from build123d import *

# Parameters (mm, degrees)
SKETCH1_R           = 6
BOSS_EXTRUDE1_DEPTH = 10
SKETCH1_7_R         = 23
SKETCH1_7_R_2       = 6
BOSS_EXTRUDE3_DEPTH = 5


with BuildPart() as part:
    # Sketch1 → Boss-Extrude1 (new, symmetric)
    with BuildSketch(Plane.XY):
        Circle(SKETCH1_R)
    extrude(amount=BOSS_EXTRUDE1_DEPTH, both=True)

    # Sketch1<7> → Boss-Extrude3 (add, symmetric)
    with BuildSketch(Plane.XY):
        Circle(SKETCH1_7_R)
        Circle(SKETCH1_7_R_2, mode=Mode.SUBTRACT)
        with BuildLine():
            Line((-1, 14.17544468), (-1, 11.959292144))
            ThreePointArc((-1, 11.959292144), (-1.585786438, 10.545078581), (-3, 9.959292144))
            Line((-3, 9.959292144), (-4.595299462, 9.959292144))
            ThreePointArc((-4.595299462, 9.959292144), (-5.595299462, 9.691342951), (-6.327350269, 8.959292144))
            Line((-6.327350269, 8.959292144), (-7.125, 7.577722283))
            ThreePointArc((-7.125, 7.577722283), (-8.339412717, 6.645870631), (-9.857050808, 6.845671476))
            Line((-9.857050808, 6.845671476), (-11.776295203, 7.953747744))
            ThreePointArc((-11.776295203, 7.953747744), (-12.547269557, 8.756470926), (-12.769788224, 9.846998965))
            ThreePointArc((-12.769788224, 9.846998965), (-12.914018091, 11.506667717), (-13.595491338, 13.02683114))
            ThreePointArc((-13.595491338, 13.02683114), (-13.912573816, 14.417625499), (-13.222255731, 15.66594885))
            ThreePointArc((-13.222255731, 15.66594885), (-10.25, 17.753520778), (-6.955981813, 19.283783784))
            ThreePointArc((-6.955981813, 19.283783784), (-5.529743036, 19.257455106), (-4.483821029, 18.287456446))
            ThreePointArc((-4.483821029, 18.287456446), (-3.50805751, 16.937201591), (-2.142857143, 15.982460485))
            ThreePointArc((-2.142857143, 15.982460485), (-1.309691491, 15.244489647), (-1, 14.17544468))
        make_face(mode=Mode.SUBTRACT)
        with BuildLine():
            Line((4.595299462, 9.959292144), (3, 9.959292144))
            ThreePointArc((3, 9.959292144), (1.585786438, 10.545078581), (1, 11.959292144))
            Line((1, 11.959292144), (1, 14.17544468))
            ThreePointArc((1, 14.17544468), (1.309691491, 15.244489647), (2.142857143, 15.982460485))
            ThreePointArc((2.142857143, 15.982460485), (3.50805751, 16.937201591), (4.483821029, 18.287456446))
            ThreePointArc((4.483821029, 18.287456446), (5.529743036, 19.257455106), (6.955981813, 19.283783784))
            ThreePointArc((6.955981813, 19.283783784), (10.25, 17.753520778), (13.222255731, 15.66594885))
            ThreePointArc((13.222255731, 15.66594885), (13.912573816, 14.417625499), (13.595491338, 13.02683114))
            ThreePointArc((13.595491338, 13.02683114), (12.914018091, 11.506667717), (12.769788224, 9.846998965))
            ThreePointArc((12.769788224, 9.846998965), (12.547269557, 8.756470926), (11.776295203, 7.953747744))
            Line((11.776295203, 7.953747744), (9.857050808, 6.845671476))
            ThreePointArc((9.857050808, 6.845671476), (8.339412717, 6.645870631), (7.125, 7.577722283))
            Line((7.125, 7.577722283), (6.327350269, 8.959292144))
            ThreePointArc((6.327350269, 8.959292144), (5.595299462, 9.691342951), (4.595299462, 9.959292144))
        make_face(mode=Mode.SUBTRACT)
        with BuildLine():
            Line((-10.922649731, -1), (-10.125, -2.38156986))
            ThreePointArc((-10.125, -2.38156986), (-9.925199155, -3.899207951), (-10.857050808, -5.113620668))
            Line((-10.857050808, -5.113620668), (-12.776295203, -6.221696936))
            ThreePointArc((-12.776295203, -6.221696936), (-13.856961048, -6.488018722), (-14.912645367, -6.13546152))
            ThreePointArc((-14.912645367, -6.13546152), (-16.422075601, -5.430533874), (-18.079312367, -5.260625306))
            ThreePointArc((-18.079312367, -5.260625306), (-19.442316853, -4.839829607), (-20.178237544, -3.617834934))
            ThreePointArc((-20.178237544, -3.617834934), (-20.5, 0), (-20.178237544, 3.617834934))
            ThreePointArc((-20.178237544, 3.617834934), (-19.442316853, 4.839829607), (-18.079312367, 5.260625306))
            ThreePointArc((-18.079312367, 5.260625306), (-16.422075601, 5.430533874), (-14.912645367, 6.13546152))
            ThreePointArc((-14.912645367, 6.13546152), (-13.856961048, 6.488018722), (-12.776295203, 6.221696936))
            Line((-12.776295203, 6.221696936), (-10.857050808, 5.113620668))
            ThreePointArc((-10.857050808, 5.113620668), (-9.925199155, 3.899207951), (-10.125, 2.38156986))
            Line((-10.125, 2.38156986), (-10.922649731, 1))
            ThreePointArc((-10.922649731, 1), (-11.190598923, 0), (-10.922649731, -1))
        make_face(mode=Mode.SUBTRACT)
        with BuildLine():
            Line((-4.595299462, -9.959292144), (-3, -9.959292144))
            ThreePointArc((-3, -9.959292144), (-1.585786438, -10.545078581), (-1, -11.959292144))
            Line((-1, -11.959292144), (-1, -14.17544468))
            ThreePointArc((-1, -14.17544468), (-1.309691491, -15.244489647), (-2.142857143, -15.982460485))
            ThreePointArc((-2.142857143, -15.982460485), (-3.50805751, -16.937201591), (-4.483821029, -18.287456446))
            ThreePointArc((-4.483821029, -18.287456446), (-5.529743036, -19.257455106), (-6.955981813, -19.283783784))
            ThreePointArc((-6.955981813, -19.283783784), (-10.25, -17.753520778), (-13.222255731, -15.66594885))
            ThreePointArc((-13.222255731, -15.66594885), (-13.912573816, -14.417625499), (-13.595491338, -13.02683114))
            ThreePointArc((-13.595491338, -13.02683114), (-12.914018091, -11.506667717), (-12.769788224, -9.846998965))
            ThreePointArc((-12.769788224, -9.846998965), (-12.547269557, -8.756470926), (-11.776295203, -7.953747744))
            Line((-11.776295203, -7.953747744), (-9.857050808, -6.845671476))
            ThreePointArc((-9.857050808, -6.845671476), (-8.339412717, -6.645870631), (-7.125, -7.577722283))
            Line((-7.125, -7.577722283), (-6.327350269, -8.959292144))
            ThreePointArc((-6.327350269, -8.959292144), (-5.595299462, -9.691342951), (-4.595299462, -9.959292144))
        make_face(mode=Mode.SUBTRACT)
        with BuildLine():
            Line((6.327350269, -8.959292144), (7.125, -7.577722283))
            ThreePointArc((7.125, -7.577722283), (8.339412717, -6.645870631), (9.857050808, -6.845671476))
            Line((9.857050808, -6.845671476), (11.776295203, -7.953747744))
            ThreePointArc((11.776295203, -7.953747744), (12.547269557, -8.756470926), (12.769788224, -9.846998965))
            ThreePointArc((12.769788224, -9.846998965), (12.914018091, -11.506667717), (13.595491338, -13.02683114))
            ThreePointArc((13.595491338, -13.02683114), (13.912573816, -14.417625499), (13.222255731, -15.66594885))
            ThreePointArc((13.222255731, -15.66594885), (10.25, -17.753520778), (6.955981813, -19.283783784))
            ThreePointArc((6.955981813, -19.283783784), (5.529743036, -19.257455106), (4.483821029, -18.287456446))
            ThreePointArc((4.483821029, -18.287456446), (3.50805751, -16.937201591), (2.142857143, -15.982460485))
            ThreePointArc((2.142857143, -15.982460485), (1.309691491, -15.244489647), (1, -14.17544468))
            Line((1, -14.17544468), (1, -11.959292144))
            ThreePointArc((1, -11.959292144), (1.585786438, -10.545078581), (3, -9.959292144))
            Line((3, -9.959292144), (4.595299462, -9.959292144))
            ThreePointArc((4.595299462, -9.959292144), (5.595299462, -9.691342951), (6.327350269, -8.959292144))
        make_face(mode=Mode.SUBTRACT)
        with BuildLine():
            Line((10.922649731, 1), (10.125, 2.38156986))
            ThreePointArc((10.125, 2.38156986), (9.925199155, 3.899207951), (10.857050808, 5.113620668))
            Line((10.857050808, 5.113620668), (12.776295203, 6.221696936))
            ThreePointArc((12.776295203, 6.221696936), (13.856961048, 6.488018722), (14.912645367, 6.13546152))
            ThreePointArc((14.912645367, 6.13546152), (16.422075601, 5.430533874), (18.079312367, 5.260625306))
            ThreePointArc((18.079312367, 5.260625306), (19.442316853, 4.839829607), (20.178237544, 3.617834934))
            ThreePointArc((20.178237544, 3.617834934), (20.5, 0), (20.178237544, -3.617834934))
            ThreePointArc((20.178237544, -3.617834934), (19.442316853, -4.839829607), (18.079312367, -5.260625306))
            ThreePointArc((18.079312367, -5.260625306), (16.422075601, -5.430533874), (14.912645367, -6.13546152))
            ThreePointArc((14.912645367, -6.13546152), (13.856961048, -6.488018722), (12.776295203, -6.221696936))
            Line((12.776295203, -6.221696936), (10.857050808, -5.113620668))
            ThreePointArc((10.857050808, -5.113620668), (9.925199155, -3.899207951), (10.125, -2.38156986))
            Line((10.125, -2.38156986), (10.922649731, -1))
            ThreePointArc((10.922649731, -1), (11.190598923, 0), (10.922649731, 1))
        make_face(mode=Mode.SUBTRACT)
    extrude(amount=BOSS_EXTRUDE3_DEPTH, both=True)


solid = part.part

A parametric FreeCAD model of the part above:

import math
import FreeCAD as App
import Part
import Sketcher

V = App.Vector
Q = App.Units.Quantity

doc = App.newDocument("Part")
body = doc.addObject("PartDesign::Body", "Body")

# Sketch on XY plane
sketch1 = doc.addObject("Sketcher::SketchObject", "Sketch")
body.addObject(sketch1)
sketch1.AttachmentSupport = (doc.XY_Plane, [""])
sketch1.MapMode = "FlatFace"
sketch1.addGeometry(Part.Circle(V(0, 0, 0), V(0, 0, 1), 6), False)
sketch1.addConstraint(Sketcher.Constraint("Coincident", 0, 3, -1, 1))
sketch1.addConstraint(Sketcher.Constraint("Diameter", 0, Q("12 mm")))
pad1 = doc.addObject("PartDesign::Pad", "Pad")
body.addObject(pad1)
pad1.Profile = sketch1
pad1.Length = 20
pad1.Midplane = True

# Sketch on XY plane
sketch2 = doc.addObject("Sketcher::SketchObject", "Sketch001")
body.addObject(sketch2)
sketch2.AttachmentSupport = (doc.XY_Plane, [""])
sketch2.MapMode = "FlatFace"
sketch2.addGeometry(Part.Circle(V(0, 0, 0), V(0, 0, 1), 23), False)
sketch2.addGeometry(Part.ArcOfCircle(Part.Circle(V(-4.6, -8, 0), V(0, 0, 1), 2), math.radians(-150), math.radians(-90)), False)
sketch2.addGeometry(Part.LineSegment(V(-4.6, -10, 0), V(-3, -10, 0)), False)
sketch2.addGeometry(Part.ArcOfCircle(Part.Circle(V(-3, -12, 0), V(0, 0, 1), 2), math.radians(0), math.radians(90)), False)
sketch2.addGeometry(Part.LineSegment(V(-1, -12, 0), V(-1, -14.2, 0)), False)
sketch2.addGeometry(Part.ArcOfCircle(Part.Circle(V(-3, -14.2, 0), V(0, 0, 1), 2), math.radians(-65), math.radians(0)), False)
sketch2.addGeometry(Part.ArcOfCircle(Part.Circle(V(0, -20.5, 0), V(0, 0, 1), 5), math.radians(115), math.radians(154)), False)
sketch2.addGeometry(Part.ArcOfCircle(Part.Circle(V(-6.3, -17.4, 0), V(0, 0, 1), 2), math.radians(-110), math.radians(-26)), False)
sketch2.addGeometry(Part.ArcOfCircle(Part.Circle(V(0, 0, 0), V(0, 0, 1), 20.5), math.radians(-130), math.radians(-110)), False)
sketch2.addGeometry(Part.ArcOfCircle(Part.Circle(V(-11.9, -14.1, 0), V(0, 0, 1), 2), math.radians(146), math.radians(230)), False)
sketch2.addGeometry(Part.ArcOfCircle(Part.Circle(V(-17.8, -10.3, 0), V(0, 0, 1), 5), math.radians(-34), math.radians(5)), False)
sketch2.addGeometry(Part.ArcOfCircle(Part.Circle(V(-10.8, -9.7, 0), V(0, 0, 1), 2), math.radians(120), math.radians(185)), False)
sketch2.addGeometry(Part.LineSegment(V(-11.8, -8, 0), V(-9.9, -6.8, 0)), False)
sketch2.addGeometry(Part.ArcOfCircle(Part.Circle(V(-8.9, -8.6, 0), V(0, 0, 1), 2), math.radians(30), math.radians(120)), False)
sketch2.addGeometry(Part.LineSegment(V(-7.1, -7.6, 0), V(-6.3, -9, 0)), False)
sketch2.addGeometry(Part.ArcOfCircle(Part.Circle(V(4.6, -8, 0), V(0, 0, 1), 2), math.radians(-90), math.radians(-30)), False)
sketch2.addGeometry(Part.LineSegment(V(6.3, -9, 0), V(7.1, -7.6, 0)), False)
sketch2.addGeometry(Part.ArcOfCircle(Part.Circle(V(8.9, -8.6, 0), V(0, 0, 1), 2), math.radians(60), math.radians(150)), False)
sketch2.addGeometry(Part.LineSegment(V(9.9, -6.8, 0), V(11.8, -8, 0)), False)
sketch2.addGeometry(Part.ArcOfCircle(Part.Circle(V(10.8, -9.7, 0), V(0, 0, 1), 2), math.radians(-5), math.radians(60)), False)
sketch2.addGeometry(Part.ArcOfCircle(Part.Circle(V(17.8, -10.3, 0), V(0, 0, 1), 5), math.radians(175), math.radians(214)), False)
sketch2.addGeometry(Part.ArcOfCircle(Part.Circle(V(11.9, -14.1, 0), V(0, 0, 1), 2), math.radians(-50), math.radians(34)), False)
sketch2.addGeometry(Part.ArcOfCircle(Part.Circle(V(0, 0, 0), V(0, 0, 1), 20.5), math.radians(-70), math.radians(-50)), False)
sketch2.addGeometry(Part.ArcOfCircle(Part.Circle(V(6.3, -17.4, 0), V(0, 0, 1), 2), math.radians(-154), math.radians(-70)), False)
sketch2.addGeometry(Part.ArcOfCircle(Part.Circle(V(0, -20.5, 0), V(0, 0, 1), 5), math.radians(26), math.radians(65)), False)
sketch2.addGeometry(Part.ArcOfCircle(Part.Circle(V(3, -14.2, 0), V(0, 0, 1), 2), math.radians(-180), math.radians(-115)), False)
sketch2.addGeometry(Part.LineSegment(V(1, -14.2, 0), V(1, -12, 0)), False)
sketch2.addGeometry(Part.ArcOfCircle(Part.Circle(V(3, -12, 0), V(0, 0, 1), 2), math.radians(90), math.radians(180)), False)
sketch2.addGeometry(Part.LineSegment(V(3, -10, 0), V(4.6, -10, 0)), False)
sketch2.addGeometry(Part.ArcOfCircle(Part.Circle(V(-9.2, 0, 0), V(0, 0, 1), 2), math.radians(150), math.radians(210)), False)
sketch2.addGeometry(Part.LineSegment(V(-10.9, -1, 0), V(-10.1, -2.4, 0)), False)
sketch2.addGeometry(Part.ArcOfCircle(Part.Circle(V(-11.9, -3.4, 0), V(0, 0, 1), 2), math.radians(-60), math.radians(30)), False)
sketch2.addGeometry(Part.LineSegment(V(-10.9, -5.1, 0), V(-12.8, -6.2, 0)), False)
sketch2.addGeometry(Part.ArcOfCircle(Part.Circle(V(-13.8, -4.5, 0), V(0, 0, 1), 2), math.radians(-125), math.radians(-60)), False)
sketch2.addGeometry(Part.ArcOfCircle(Part.Circle(V(-17.8, -10.3, 0), V(0, 0, 1), 5), math.radians(55), math.radians(94)), False)
sketch2.addGeometry(Part.ArcOfCircle(Part.Circle(V(-18.2, -3.3, 0), V(0, 0, 1), 2), math.radians(-170), math.radians(-86)), False)
sketch2.addGeometry(Part.ArcOfCircle(Part.Circle(V(0, 0, 0), V(0, 0, 1), 20.5), math.radians(170), math.radians(190)), False)
sketch2.addGeometry(Part.ArcOfCircle(Part.Circle(V(-18.2, 3.3, 0), V(0, 0, 1), 2), math.radians(86), math.radians(170)), False)
sketch2.addGeometry(Part.ArcOfCircle(Part.Circle(V(-17.8, 10.3, 0), V(0, 0, 1), 5), math.radians(-94), math.radians(-55)), False)
sketch2.addGeometry(Part.ArcOfCircle(Part.Circle(V(-13.8, 4.5, 0), V(0, 0, 1), 2), math.radians(60), math.radians(125)), False)
sketch2.addGeometry(Part.LineSegment(V(-12.8, 6.2, 0), V(-10.9, 5.1, 0)), False)
sketch2.addGeometry(Part.ArcOfCircle(Part.Circle(V(-11.9, 3.4, 0), V(0, 0, 1), 2), math.radians(-30), math.radians(60)), False)
sketch2.addGeometry(Part.LineSegment(V(-10.1, 2.4, 0), V(-10.9, 1, 0)), False)
sketch2.addGeometry(Part.ArcOfCircle(Part.Circle(V(-3, 14.2, 0), V(0, 0, 1), 2), math.radians(0), math.radians(65)), False)
sketch2.addGeometry(Part.LineSegment(V(-1, 14.2, 0), V(-1, 12, 0)), False)
sketch2.addGeometry(Part.ArcOfCircle(Part.Circle(V(-3, 12, 0), V(0, 0, 1), 2), math.radians(-90), math.radians(0)), False)
sketch2.addGeometry(Part.LineSegment(V(-3, 10, 0), V(-4.6, 10, 0)), False)
sketch2.addGeometry(Part.ArcOfCircle(Part.Circle(V(-4.6, 8, 0), V(0, 0, 1), 2), math.radians(90), math.radians(150)), False)
sketch2.addGeometry(Part.LineSegment(V(-6.3, 9, 0), V(-7.1, 7.6, 0)), False)
sketch2.addGeometry(Part.ArcOfCircle(Part.Circle(V(-8.9, 8.6, 0), V(0, 0, 1), 2), math.radians(-120), math.radians(-30)), False)
sketch2.addGeometry(Part.LineSegment(V(-9.9, 6.8, 0), V(-11.8, 8, 0)), False)
sketch2.addGeometry(Part.ArcOfCircle(Part.Circle(V(-10.8, 9.7, 0), V(0, 0, 1), 2), math.radians(175), math.radians(240)), False)
sketch2.addGeometry(Part.ArcOfCircle(Part.Circle(V(-17.8, 10.3, 0), V(0, 0, 1), 5), math.radians(-5), math.radians(34)), False)
sketch2.addGeometry(Part.ArcOfCircle(Part.Circle(V(-11.9, 14.1, 0), V(0, 0, 1), 2), math.radians(130), math.radians(214)), False)
sketch2.addGeometry(Part.ArcOfCircle(Part.Circle(V(0, 0, 0), V(0, 0, 1), 20.5), math.radians(110), math.radians(130)), False)
sketch2.addGeometry(Part.ArcOfCircle(Part.Circle(V(-6.3, 17.4, 0), V(0, 0, 1), 2), math.radians(26), math.radians(110)), False)
sketch2.addGeometry(Part.ArcOfCircle(Part.Circle(V(0, 20.5, 0), V(0, 0, 1), 5), math.radians(-154), math.radians(-115)), False)
sketch2.addGeometry(Part.Circle(V(0, 0, 0), V(0, 0, 1), 6), False)
sketch2.addGeometry(Part.ArcOfCircle(Part.Circle(V(9.2, 0, 0), V(0, 0, 1), 2), math.radians(-30), math.radians(30)), False)
sketch2.addGeometry(Part.LineSegment(V(10.9, 1, 0), V(10.1, 2.4, 0)), False)
sketch2.addGeometry(Part.ArcOfCircle(Part.Circle(V(11.9, 3.4, 0), V(0, 0, 1), 2), math.radians(120), math.radians(210)), False)
sketch2.addGeometry(Part.LineSegment(V(10.9, 5.1, 0), V(12.8, 6.2, 0)), False)
sketch2.addGeometry(Part.ArcOfCircle(Part.Circle(V(13.8, 4.5, 0), V(0, 0, 1), 2), math.radians(55), math.radians(120)), False)
sketch2.addGeometry(Part.ArcOfCircle(Part.Circle(V(17.8, 10.3, 0), V(0, 0, 1), 5), math.radians(-125), math.radians(-86)), False)
sketch2.addGeometry(Part.ArcOfCircle(Part.Circle(V(18.2, 3.3, 0), V(0, 0, 1), 2), math.radians(10), math.radians(94)), False)
sketch2.addGeometry(Part.ArcOfCircle(Part.Circle(V(0, 0, 0), V(0, 0, 1), 20.5), math.radians(-10), math.radians(10)), False)
sketch2.addGeometry(Part.ArcOfCircle(Part.Circle(V(18.2, -3.3, 0), V(0, 0, 1), 2), math.radians(-94), math.radians(-10)), False)
sketch2.addGeometry(Part.ArcOfCircle(Part.Circle(V(17.8, -10.3, 0), V(0, 0, 1), 5), math.radians(86), math.radians(125)), False)
sketch2.addGeometry(Part.ArcOfCircle(Part.Circle(V(13.8, -4.5, 0), V(0, 0, 1), 2), math.radians(-120), math.radians(-55)), False)
sketch2.addGeometry(Part.LineSegment(V(12.8, -6.2, 0), V(10.9, -5.1, 0)), False)
sketch2.addGeometry(Part.ArcOfCircle(Part.Circle(V(11.9, -3.4, 0), V(0, 0, 1), 2), math.radians(150), math.radians(240)), False)
sketch2.addGeometry(Part.LineSegment(V(10.1, -2.4, 0), V(10.9, -1, 0)), False)
sketch2.addGeometry(Part.ArcOfCircle(Part.Circle(V(4.6, 8, 0), V(0, 0, 1), 2), math.radians(30), math.radians(90)), False)
sketch2.addGeometry(Part.LineSegment(V(4.6, 10, 0), V(3, 10, 0)), False)
sketch2.addGeometry(Part.ArcOfCircle(Part.Circle(V(3, 12, 0), V(0, 0, 1), 2), math.radians(180), math.radians(270)), False)
sketch2.addGeometry(Part.LineSegment(V(1, 12, 0), V(1, 14.2, 0)), False)
sketch2.addGeometry(Part.ArcOfCircle(Part.Circle(V(3, 14.2, 0), V(0, 0, 1), 2), math.radians(115), math.radians(180)), False)
sketch2.addGeometry(Part.ArcOfCircle(Part.Circle(V(0, 20.5, 0), V(0, 0, 1), 5), math.radians(-65), math.radians(-26)), False)
sketch2.addGeometry(Part.ArcOfCircle(Part.Circle(V(6.3, 17.4, 0), V(0, 0, 1), 2), math.radians(70), math.radians(154)), False)
sketch2.addGeometry(Part.ArcOfCircle(Part.Circle(V(0, 0, 0), V(0, 0, 1), 20.5), math.radians(50), math.radians(70)), False)
sketch2.addGeometry(Part.ArcOfCircle(Part.Circle(V(11.9, 14.1, 0), V(0, 0, 1), 2), math.radians(-34), math.radians(50)), False)
sketch2.addGeometry(Part.ArcOfCircle(Part.Circle(V(17.8, 10.3, 0), V(0, 0, 1), 5), math.radians(146), math.radians(185)), False)
sketch2.addGeometry(Part.ArcOfCircle(Part.Circle(V(10.8, 9.7, 0), V(0, 0, 1), 2), math.radians(-60), math.radians(5)), False)
sketch2.addGeometry(Part.LineSegment(V(11.8, 8, 0), V(9.9, 6.8, 0)), False)
sketch2.addGeometry(Part.ArcOfCircle(Part.Circle(V(8.9, 8.6, 0), V(0, 0, 1), 2), math.radians(-150), math.radians(-60)), False)
sketch2.addGeometry(Part.LineSegment(V(7.1, 7.6, 0), V(6.3, 9, 0)), False)
sketch2.addConstraint(Sketcher.Constraint("Tangent", 1, 2, 2, 1))
sketch2.addConstraint(Sketcher.Constraint("Tangent", 2, 2, 3, 2))
sketch2.addConstraint(Sketcher.Constraint("Tangent", 3, 1, 4, 1))
sketch2.addConstraint(Sketcher.Constraint("Tangent", 4, 2, 5, 2))
sketch2.addConstraint(Sketcher.Constraint("Tangent", 5, 1, 6, 1))
sketch2.addConstraint(Sketcher.Constraint("Tangent", 6, 2, 7, 2))
sketch2.addConstraint(Sketcher.Constraint("Tangent", 7, 1, 8, 2))
sketch2.addConstraint(Sketcher.Constraint("Tangent", 8, 1, 9, 2))
sketch2.addConstraint(Sketcher.Constraint("Tangent", 9, 1, 10, 1))
sketch2.addConstraint(Sketcher.Constraint("Tangent", 10, 2, 11, 2))
sketch2.addConstraint(Sketcher.Constraint("Tangent", 11, 1, 12, 1))
sketch2.addConstraint(Sketcher.Constraint("Tangent", 12, 2, 13, 2))
sketch2.addConstraint(Sketcher.Constraint("Tangent", 13, 1, 14, 1))
sketch2.addConstraint(Sketcher.Constraint("Tangent", 14, 2, 1, 1))
sketch2.addConstraint(Sketcher.Constraint("Tangent", 15, 2, 16, 1))
sketch2.addConstraint(Sketcher.Constraint("Tangent", 16, 2, 17, 2))
sketch2.addConstraint(Sketcher.Constraint("Tangent", 17, 1, 18, 1))
sketch2.addConstraint(Sketcher.Constraint("Tangent", 18, 2, 19, 2))
sketch2.addConstraint(Sketcher.Constraint("Tangent", 19, 1, 20, 1))
sketch2.addConstraint(Sketcher.Constraint("Tangent", 20, 2, 21, 2))
sketch2.addConstraint(Sketcher.Constraint("Tangent", 21, 1, 22, 2))
sketch2.addConstraint(Sketcher.Constraint("Tangent", 22, 1, 23, 2))
sketch2.addConstraint(Sketcher.Constraint("Tangent", 23, 1, 24, 1))
sketch2.addConstraint(Sketcher.Constraint("Tangent", 24, 2, 25, 2))
sketch2.addConstraint(Sketcher.Constraint("Tangent", 25, 1, 26, 1))
sketch2.addConstraint(Sketcher.Constraint("Tangent", 26, 2, 27, 2))
sketch2.addConstraint(Sketcher.Constraint("Tangent", 27, 1, 28, 1))
sketch2.addConstraint(Sketcher.Constraint("Tangent", 28, 2, 15, 1))
sketch2.addConstraint(Sketcher.Constraint("Tangent", 29, 2, 30, 1))
sketch2.addConstraint(Sketcher.Constraint("Tangent", 30, 2, 31, 2))
sketch2.addConstraint(Sketcher.Constraint("Tangent", 31, 1, 32, 1))
sketch2.addConstraint(Sketcher.Constraint("Tangent", 32, 2, 33, 2))
sketch2.addConstraint(Sketcher.Constraint("Tangent", 33, 1, 34, 1))
sketch2.addConstraint(Sketcher.Constraint("Tangent", 34, 2, 35, 2))
sketch2.addConstraint(Sketcher.Constraint("Tangent", 35, 1, 36, 2))
sketch2.addConstraint(Sketcher.Constraint("Tangent", 36, 1, 37, 2))
sketch2.addConstraint(Sketcher.Constraint("Tangent", 37, 1, 38, 1))
sketch2.addConstraint(Sketcher.Constraint("Tangent", 38, 2, 39, 2))
sketch2.addConstraint(Sketcher.Constraint("Tangent", 39, 1, 40, 1))
sketch2.addConstraint(Sketcher.Constraint("Tangent", 40, 2, 41, 2))
sketch2.addConstraint(Sketcher.Constraint("Tangent", 41, 1, 42, 1))
sketch2.addConstraint(Sketcher.Constraint("Tangent", 42, 2, 29, 1))
sketch2.addConstraint(Sketcher.Constraint("Tangent", 43, 1, 44, 1))
sketch2.addConstraint(Sketcher.Constraint("Tangent", 44, 2, 45, 2))
sketch2.addConstraint(Sketcher.Constraint("Tangent", 45, 1, 46, 1))
sketch2.addConstraint(Sketcher.Constraint("Tangent", 46, 2, 47, 1))
sketch2.addConstraint(Sketcher.Constraint("Tangent", 47, 2, 48, 1))
sketch2.addConstraint(Sketcher.Constraint("Tangent", 48, 2, 49, 2))
sketch2.addConstraint(Sketcher.Constraint("Tangent", 49, 1, 50, 1))
sketch2.addConstraint(Sketcher.Constraint("Tangent", 50, 2, 51, 2))
sketch2.addConstraint(Sketcher.Constraint("Tangent", 51, 1, 52, 1))
sketch2.addConstraint(Sketcher.Constraint("Tangent", 52, 2, 53, 2))
sketch2.addConstraint(Sketcher.Constraint("Tangent", 53, 1, 54, 2))
sketch2.addConstraint(Sketcher.Constraint("Tangent", 54, 1, 55, 2))
sketch2.addConstraint(Sketcher.Constraint("Tangent", 55, 1, 56, 1))
sketch2.addConstraint(Sketcher.Constraint("Tangent", 56, 2, 43, 2))
sketch2.addConstraint(Sketcher.Constraint("Tangent", 58, 2, 59, 1))
sketch2.addConstraint(Sketcher.Constraint("Tangent", 59, 2, 60, 2))
sketch2.addConstraint(Sketcher.Constraint("Tangent", 60, 1, 61, 1))
sketch2.addConstraint(Sketcher.Constraint("Tangent", 61, 2, 62, 2))
sketch2.addConstraint(Sketcher.Constraint("Tangent", 62, 1, 63, 1))
sketch2.addConstraint(Sketcher.Constraint("Tangent", 63, 2, 64, 2))
sketch2.addConstraint(Sketcher.Constraint("Tangent", 64, 1, 65, 2))
sketch2.addConstraint(Sketcher.Constraint("Tangent", 65, 1, 66, 2))
sketch2.addConstraint(Sketcher.Constraint("Tangent", 66, 1, 67, 1))
sketch2.addConstraint(Sketcher.Constraint("Tangent", 67, 2, 68, 2))
sketch2.addConstraint(Sketcher.Constraint("Tangent", 68, 1, 69, 1))
sketch2.addConstraint(Sketcher.Constraint("Tangent", 69, 2, 70, 2))
sketch2.addConstraint(Sketcher.Constraint("Tangent", 70, 1, 71, 1))
sketch2.addConstraint(Sketcher.Constraint("Tangent", 71, 2, 58, 1))
sketch2.addConstraint(Sketcher.Constraint("Tangent", 72, 2, 73, 1))
sketch2.addConstraint(Sketcher.Constraint("Tangent", 73, 2, 74, 2))
sketch2.addConstraint(Sketcher.Constraint("Tangent", 74, 1, 75, 1))
sketch2.addConstraint(Sketcher.Constraint("Tangent", 75, 2, 76, 2))
sketch2.addConstraint(Sketcher.Constraint("Tangent", 76, 1, 77, 1))
sketch2.addConstraint(Sketcher.Constraint("Tangent", 77, 2, 78, 2))
sketch2.addConstraint(Sketcher.Constraint("Tangent", 78, 1, 79, 2))
sketch2.addConstraint(Sketcher.Constraint("Tangent", 79, 1, 80, 2))
sketch2.addConstraint(Sketcher.Constraint("Tangent", 80, 1, 81, 1))
sketch2.addConstraint(Sketcher.Constraint("Tangent", 81, 2, 82, 2))
sketch2.addConstraint(Sketcher.Constraint("Tangent", 82, 1, 83, 1))
sketch2.addConstraint(Sketcher.Constraint("Tangent", 83, 2, 84, 2))
sketch2.addConstraint(Sketcher.Constraint("Tangent", 84, 1, 85, 1))
sketch2.addConstraint(Sketcher.Constraint("Tangent", 85, 2, 72, 1))
sketch2.addConstraint(Sketcher.Constraint("Horizontal", 2))
sketch2.addConstraint(Sketcher.Constraint("Vertical", 4))
sketch2.addConstraint(Sketcher.Constraint("Vertical", 26))
sketch2.addConstraint(Sketcher.Constraint("Horizontal", 28))
sketch2.addConstraint(Sketcher.Constraint("Vertical", 44))
sketch2.addConstraint(Sketcher.Constraint("Horizontal", 46))
sketch2.addConstraint(Sketcher.Constraint("Horizontal", 73))
sketch2.addConstraint(Sketcher.Constraint("Vertical", 75))
sketch2.addConstraint(Sketcher.Constraint("Coincident", 0, 3, -1, 1))
sketch2.addConstraint(Sketcher.Constraint("Coincident", 8, 3, -1, 1))
sketch2.addConstraint(Sketcher.Constraint("Coincident", 22, 3, -1, 1))
sketch2.addConstraint(Sketcher.Constraint("Coincident", 36, 3, -1, 1))
sketch2.addConstraint(Sketcher.Constraint("Coincident", 54, 3, -1, 1))
sketch2.addConstraint(Sketcher.Constraint("Coincident", 57, 3, -1, 1))
sketch2.addConstraint(Sketcher.Constraint("Coincident", 65, 3, -1, 1))
sketch2.addConstraint(Sketcher.Constraint("Coincident", 79, 3, -1, 1))
sketch2.addConstraint(Sketcher.Constraint("Coincident", 24, 3, 6, 3))
sketch2.addConstraint(Sketcher.Constraint("Coincident", 34, 3, 10, 3))
sketch2.addConstraint(Sketcher.Constraint("Coincident", 52, 3, 38, 3))
sketch2.addConstraint(Sketcher.Constraint("Coincident", 67, 3, 20, 3))
sketch2.addConstraint(Sketcher.Constraint("Coincident", 77, 3, 56, 3))
sketch2.addConstraint(Sketcher.Constraint("Coincident", 81, 3, 63, 3))
sketch2.addConstraint(Sketcher.Constraint("Equal", 1, 3))
sketch2.addConstraint(Sketcher.Constraint("Equal", 3, 5))
sketch2.addConstraint(Sketcher.Constraint("Equal", 5, 7))
sketch2.addConstraint(Sketcher.Constraint("Equal", 7, 9))
sketch2.addConstraint(Sketcher.Constraint("Equal", 6, 10))
sketch2.addConstraint(Sketcher.Constraint("Equal", 9, 11))
sketch2.addConstraint(Sketcher.Constraint("Equal", 11, 13))
sketch2.addConstraint(Sketcher.Constraint("Equal", 13, 15))
sketch2.addConstraint(Sketcher.Constraint("Equal", 15, 17))
sketch2.addConstraint(Sketcher.Constraint("Equal", 17, 19))
sketch2.addConstraint(Sketcher.Constraint("Equal", 10, 20))
sketch2.addConstraint(Sketcher.Constraint("Equal", 19, 21))
sketch2.addConstraint(Sketcher.Constraint("Equal", 8, 22))
sketch2.addConstraint(Sketcher.Constraint("Equal", 21, 23))
sketch2.addConstraint(Sketcher.Constraint("Equal", 20, 24))
sketch2.addConstraint(Sketcher.Constraint("Equal", 23, 25))
sketch2.addConstraint(Sketcher.Constraint("Equal", 25, 27))
sketch2.addConstraint(Sketcher.Constraint("Equal", 27, 29))
sketch2.addConstraint(Sketcher.Constraint("Equal", 29, 31))
sketch2.addConstraint(Sketcher.Constraint("Equal", 31, 33))
sketch2.addConstraint(Sketcher.Constraint("Equal", 24, 34))
sketch2.addConstraint(Sketcher.Constraint("Equal", 33, 35))
sketch2.addConstraint(Sketcher.Constraint("Equal", 22, 36))
sketch2.addConstraint(Sketcher.Constraint("Equal", 35, 37))
sketch2.addConstraint(Sketcher.Constraint("Equal", 34, 38))
sketch2.addConstraint(Sketcher.Constraint("Equal", 37, 39))
sketch2.addConstraint(Sketcher.Constraint("Equal", 39, 41))
sketch2.addConstraint(Sketcher.Constraint("Equal", 41, 43))
sketch2.addConstraint(Sketcher.Constraint("Equal", 43, 45))
sketch2.addConstraint(Sketcher.Constraint("Equal", 45, 47))
sketch2.addConstraint(Sketcher.Constraint("Equal", 47, 49))
sketch2.addConstraint(Sketcher.Constraint("Equal", 49, 51))
sketch2.addConstraint(Sketcher.Constraint("Equal", 38, 52))
sketch2.addConstraint(Sketcher.Constraint("Equal", 51, 53))
sketch2.addConstraint(Sketcher.Constraint("Equal", 36, 54))
sketch2.addConstraint(Sketcher.Constraint("Equal", 53, 55))
sketch2.addConstraint(Sketcher.Constraint("Equal", 52, 56))
sketch2.addConstraint(Sketcher.Constraint("Equal", 55, 58))
sketch2.addConstraint(Sketcher.Constraint("Equal", 58, 60))
sketch2.addConstraint(Sketcher.Constraint("Equal", 60, 62))
sketch2.addConstraint(Sketcher.Constraint("Equal", 56, 63))
sketch2.addConstraint(Sketcher.Constraint("Equal", 62, 64))
sketch2.addConstraint(Sketcher.Constraint("Equal", 54, 65))
sketch2.addConstraint(Sketcher.Constraint("Equal", 64, 66))
sketch2.addConstraint(Sketcher.Constraint("Equal", 63, 67))
sketch2.addConstraint(Sketcher.Constraint("Equal", 66, 68))
sketch2.addConstraint(Sketcher.Constraint("Equal", 68, 70))
sketch2.addConstraint(Sketcher.Constraint("Equal", 70, 72))
sketch2.addConstraint(Sketcher.Constraint("Equal", 72, 74))
sketch2.addConstraint(Sketcher.Constraint("Equal", 74, 76))
sketch2.addConstraint(Sketcher.Constraint("Equal", 67, 77))
sketch2.addConstraint(Sketcher.Constraint("Equal", 76, 78))
sketch2.addConstraint(Sketcher.Constraint("Equal", 65, 79))
sketch2.addConstraint(Sketcher.Constraint("Equal", 78, 80))
sketch2.addConstraint(Sketcher.Constraint("Equal", 77, 81))
sketch2.addConstraint(Sketcher.Constraint("Equal", 80, 82))
sketch2.addConstraint(Sketcher.Constraint("Equal", 82, 84))
sketch2.addConstraint(Sketcher.Constraint("Symmetric", 20, 3, 38, 3, -1, 1))
sketch2.addConstraint(Sketcher.Constraint("Symmetric", 25, 3, 43, 3, -1, 1))
sketch2.addConstraint(Sketcher.Constraint("Symmetric", 15, 3, 47, 3, -1, 1))
sketch2.addConstraint(Sketcher.Constraint("Symmetric", 17, 3, 49, 3, -1, 1))
sketch2.addConstraint(Sketcher.Constraint("Symmetric", 29, 3, 58, 3, -1, 1))
sketch2.addConstraint(Sketcher.Constraint("Symmetric", 31, 3, 60, 3, -1, 1))
sketch2.addConstraint(Sketcher.Constraint("Symmetric", 33, 3, 62, 3, -1, 1))
sketch2.addConstraint(Sketcher.Constraint("Symmetric", 41, 3, 70, 3, -1, 1))
sketch2.addConstraint(Sketcher.Constraint("Symmetric", 1, 3, 72, 3, -1, 1))
sketch2.addConstraint(Sketcher.Constraint("Symmetric", 5, 3, 76, 3, -1, 1))
sketch2.addConstraint(Sketcher.Constraint("Symmetric", 11, 3, 82, 3, -1, 1))
sketch2.addConstraint(Sketcher.Constraint("Symmetric", 13, 3, 84, 3, -1, 1))
sketch2.addConstraint(Sketcher.Constraint("Symmetric", 1, 3, 15, 3, -2))
sketch2.addConstraint(Sketcher.Constraint("Symmetric", 13, 3, 17, 3, -2))
sketch2.addConstraint(Sketcher.Constraint("Symmetric", 11, 3, 19, 3, -2))
sketch2.addConstraint(Sketcher.Constraint("Symmetric", 5, 3, 25, 3, -2))
sketch2.addConstraint(Sketcher.Constraint("Symmetric", 41, 3, 60, 3, -2))
sketch2.addConstraint(Sketcher.Constraint("Symmetric", 39, 3, 62, 3, -2))
sketch2.addConstraint(Sketcher.Constraint("PointOnObject", 29, 3, -1))
sketch2.addConstraint(Sketcher.Constraint("Perpendicular", 12, 14))
sketch2.addConstraint(Sketcher.Constraint("Parallel", 14, 30))
sketch2.addConstraint(Sketcher.Constraint("Perpendicular", 30, 32))
sketch2.addConstraint(Sketcher.Constraint("Perpendicular", 48, 50))
sketch2.addConstraint(Sketcher.Constraint("Parallel", 50, 69))
sketch2.addConstraint(Sketcher.Constraint("Equal", 16, 30))
sketch2.addConstraint(Sketcher.Constraint("Equal", 18, 32))
sketch2.addConstraint(Sketcher.Constraint("Diameter", 0, Q("46 mm")))
sketch2.addConstraint(Sketcher.Constraint("Diameter", 57, Q("12 mm")))
sketch2.addConstraint(Sketcher.Constraint("Radius", 1, Q("2 mm")))
sketch2.addConstraint(Sketcher.Constraint("Radius", 6, Q("5 mm")))
sketch2.addConstraint(Sketcher.Constraint("Radius", 8, Q("20.5 mm")))
sketch2.addConstraint(Sketcher.Constraint("Angle", 12, Q("30 deg")))
sketch2.addConstraint(Sketcher.Constraint("DistanceX", 3, 3, -1, 1, Q("3 mm")))
sketch2.addConstraint(Sketcher.Constraint("DistanceY", 6, 3, -1, 1, Q("20.5 mm")))
sketch2.addConstraint(Sketcher.Constraint("DistanceY", 10, 3, -1, 1, Q("10.25 mm")))
sketch2.addConstraint(Sketcher.Constraint("DistanceX", 2, 1, 2, 2, Q("1.595299 mm")))
sketch2.addConstraint(Sketcher.Constraint("DistanceY", 10, 2, -1, 1, Q("9.846999 mm")))
sketch2.addConstraint(Sketcher.Constraint("DistanceX", 13, 1, -1, 1, Q("7.125 mm")))
sketch2.addConstraint(Sketcher.Constraint("DistanceX", 30, 2, -1, 1, Q("10.125 mm")))
pad2 = doc.addObject("PartDesign::Pad", "Pad001")
body.addObject(pad2)
pad2.Profile = sketch2
pad2.Length = 10
pad2.Midplane = True

doc.recompute()
